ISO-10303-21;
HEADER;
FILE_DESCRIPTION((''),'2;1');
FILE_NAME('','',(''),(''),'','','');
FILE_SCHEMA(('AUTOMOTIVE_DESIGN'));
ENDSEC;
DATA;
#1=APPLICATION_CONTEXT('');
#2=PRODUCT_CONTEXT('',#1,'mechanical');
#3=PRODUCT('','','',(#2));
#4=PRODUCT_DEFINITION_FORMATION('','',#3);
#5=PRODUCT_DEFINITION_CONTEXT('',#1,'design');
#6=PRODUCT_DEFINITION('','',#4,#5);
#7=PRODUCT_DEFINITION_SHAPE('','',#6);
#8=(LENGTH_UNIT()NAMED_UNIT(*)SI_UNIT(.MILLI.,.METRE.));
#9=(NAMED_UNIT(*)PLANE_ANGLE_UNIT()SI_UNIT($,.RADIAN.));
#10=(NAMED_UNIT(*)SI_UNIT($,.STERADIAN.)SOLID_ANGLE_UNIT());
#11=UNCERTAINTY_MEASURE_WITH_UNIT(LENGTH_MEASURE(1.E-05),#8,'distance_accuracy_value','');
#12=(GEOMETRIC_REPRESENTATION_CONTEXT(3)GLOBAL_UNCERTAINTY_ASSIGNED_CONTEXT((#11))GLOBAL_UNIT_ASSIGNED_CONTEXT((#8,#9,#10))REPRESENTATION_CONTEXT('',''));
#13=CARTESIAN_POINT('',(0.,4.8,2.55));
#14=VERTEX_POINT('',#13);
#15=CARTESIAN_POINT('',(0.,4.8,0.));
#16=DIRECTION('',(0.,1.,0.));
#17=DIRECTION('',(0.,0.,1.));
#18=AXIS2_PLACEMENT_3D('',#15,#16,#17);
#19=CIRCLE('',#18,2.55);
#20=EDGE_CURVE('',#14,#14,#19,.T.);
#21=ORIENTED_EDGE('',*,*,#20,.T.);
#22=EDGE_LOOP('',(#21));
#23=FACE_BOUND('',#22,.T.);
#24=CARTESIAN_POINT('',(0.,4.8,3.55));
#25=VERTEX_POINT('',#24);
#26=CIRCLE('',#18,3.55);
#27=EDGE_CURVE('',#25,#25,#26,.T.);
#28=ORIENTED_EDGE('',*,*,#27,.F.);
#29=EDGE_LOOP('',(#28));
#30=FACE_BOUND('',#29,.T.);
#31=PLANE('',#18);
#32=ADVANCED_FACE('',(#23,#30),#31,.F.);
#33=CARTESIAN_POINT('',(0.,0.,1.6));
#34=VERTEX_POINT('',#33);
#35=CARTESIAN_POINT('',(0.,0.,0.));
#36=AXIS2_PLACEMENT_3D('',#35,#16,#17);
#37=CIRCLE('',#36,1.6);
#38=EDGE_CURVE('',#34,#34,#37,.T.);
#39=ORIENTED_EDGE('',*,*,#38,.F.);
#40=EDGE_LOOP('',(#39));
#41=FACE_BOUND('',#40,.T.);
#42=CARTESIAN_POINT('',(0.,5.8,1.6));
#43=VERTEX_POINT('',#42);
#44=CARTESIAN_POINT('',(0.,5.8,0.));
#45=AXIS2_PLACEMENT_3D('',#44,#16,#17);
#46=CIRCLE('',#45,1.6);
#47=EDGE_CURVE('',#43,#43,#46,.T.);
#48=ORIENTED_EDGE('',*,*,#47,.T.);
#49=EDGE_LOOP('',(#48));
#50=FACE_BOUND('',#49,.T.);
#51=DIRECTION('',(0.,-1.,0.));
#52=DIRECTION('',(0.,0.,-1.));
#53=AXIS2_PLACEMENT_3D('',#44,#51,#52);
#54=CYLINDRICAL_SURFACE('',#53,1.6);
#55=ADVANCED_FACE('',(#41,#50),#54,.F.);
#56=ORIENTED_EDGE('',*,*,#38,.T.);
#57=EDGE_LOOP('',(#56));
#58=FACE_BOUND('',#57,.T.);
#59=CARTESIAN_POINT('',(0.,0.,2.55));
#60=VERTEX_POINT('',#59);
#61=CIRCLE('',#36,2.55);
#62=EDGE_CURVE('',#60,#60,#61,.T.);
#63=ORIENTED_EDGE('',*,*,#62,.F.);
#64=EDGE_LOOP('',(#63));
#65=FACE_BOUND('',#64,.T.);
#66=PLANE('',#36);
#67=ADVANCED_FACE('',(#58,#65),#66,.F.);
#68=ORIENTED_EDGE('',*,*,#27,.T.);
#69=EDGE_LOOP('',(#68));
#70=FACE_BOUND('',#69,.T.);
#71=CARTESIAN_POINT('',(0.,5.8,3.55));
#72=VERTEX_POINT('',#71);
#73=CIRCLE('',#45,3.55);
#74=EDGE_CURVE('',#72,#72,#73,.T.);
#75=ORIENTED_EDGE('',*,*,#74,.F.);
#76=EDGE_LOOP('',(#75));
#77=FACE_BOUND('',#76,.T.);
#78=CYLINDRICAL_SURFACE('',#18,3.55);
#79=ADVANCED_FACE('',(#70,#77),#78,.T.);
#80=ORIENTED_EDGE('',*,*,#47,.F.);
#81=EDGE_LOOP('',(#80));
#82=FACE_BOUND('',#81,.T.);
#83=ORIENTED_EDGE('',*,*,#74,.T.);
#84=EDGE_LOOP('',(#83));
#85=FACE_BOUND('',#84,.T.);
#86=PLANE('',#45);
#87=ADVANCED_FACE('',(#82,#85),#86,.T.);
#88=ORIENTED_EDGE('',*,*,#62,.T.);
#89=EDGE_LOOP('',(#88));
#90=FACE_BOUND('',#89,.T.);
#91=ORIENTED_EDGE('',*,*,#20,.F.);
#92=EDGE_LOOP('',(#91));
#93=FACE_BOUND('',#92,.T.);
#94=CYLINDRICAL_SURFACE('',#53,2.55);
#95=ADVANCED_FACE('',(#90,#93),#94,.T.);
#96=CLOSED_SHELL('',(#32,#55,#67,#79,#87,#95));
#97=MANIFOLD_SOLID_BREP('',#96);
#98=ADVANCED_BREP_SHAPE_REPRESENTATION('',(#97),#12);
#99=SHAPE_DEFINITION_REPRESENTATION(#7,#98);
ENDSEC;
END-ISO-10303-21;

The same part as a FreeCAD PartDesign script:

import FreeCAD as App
import Part
import Sketcher

doc = App.newDocument("Part")
params = doc.addObject("Spreadsheet::Sheet", "Params")
for row, (alias, value) in enumerate([
    ("sketch1_diameter", "5.1 mm"),
    ("sketch1_diameter2", "3.2 mm"),
    ("pad1_length", "5.8 mm"),
    ("sketch2_diameter", "7.1 mm"),
    ("sketch2_diameter2", "3.2 mm"),
    ("pad2_length", "1 mm"),
], start=1):
    params.set(f"A{row}", alias)
    params.set(f"B{row}", "=" + value)
    params.setAlias(f"B{row}", alias)

body = doc.addObject("PartDesign::Body", "Body")

# Sketch on XZ plane
sketch1 = body.newObject("Sketcher::SketchObject", "Sketch")
sketch1.AttachmentSupport = (doc.getObject("XZ_Plane"), [""])
sketch1.MapMode = "FlatFace"
sketch1.addGeometry([
    Part.Circle(App.Vector(0, 0, 0), App.Vector(0, 0, 1), 2.5),
    Part.Circle(App.Vector(0, 0, 0), App.Vector(0, 0, 1), 1.6),
], False)
sketch1.addConstraint([
    Sketcher.Constraint("Coincident", 0, 3, -1, 1),
    Sketcher.Constraint("Coincident", 1, 3, -1, 1),
    Sketcher.Constraint("Diameter", 0, 5.1),
    Sketcher.Constraint("Diameter", 1, 3.2),
])
sketch1.setExpression("Constraints[2]", "Params.sketch1_diameter")
sketch1.setExpression("Constraints[3]", "Params.sketch1_diameter2")
pad1 = body.newObject("PartDesign::Pad", "Pad")
pad1.Profile = sketch1
pad1.setExpression("Length", "Params.pad1_length")
pad1.Reversed = True

# Sketch on XZ plane
sketch2 = body.newObject("Sketcher::SketchObject", "Sketch001")
sketch2.AttachmentSupport = (doc.getObject("XZ_Plane"), [""])
sketch2.MapMode = "FlatFace"
sketch2.AttachmentOffset = App.Placement(App.Vector(0, 0, -5.8), App.Rotation())
sketch2.addGeometry([
    Part.Circle(App.Vector(0, 0, 0), App.Vector(0, 0, 1), 3.5),
    Part.Circle(App.Vector(0, 0, 0), App.Vector(0, 0, 1), 1.6),
], False)
sketch2.addConstraint([
    Sketcher.Constraint("Coincident", 0, 3, -1, 1),
    Sketcher.Constraint("Coincident", 1, 3, -1, 1),
    Sketcher.Constraint("Diameter", 0, 7.1),
    Sketcher.Constraint("Diameter", 1, 3.2),
])
sketch2.setExpression("Constraints[2]", "Params.sketch2_diameter")
sketch2.setExpression("Constraints[3]", "Params.sketch2_diameter2")
pad2 = body.newObject("PartDesign::Pad", "Pad001")
pad2.Profile = sketch2
pad2.setExpression("Length", "Params.pad2_length")

doc.recompute()
